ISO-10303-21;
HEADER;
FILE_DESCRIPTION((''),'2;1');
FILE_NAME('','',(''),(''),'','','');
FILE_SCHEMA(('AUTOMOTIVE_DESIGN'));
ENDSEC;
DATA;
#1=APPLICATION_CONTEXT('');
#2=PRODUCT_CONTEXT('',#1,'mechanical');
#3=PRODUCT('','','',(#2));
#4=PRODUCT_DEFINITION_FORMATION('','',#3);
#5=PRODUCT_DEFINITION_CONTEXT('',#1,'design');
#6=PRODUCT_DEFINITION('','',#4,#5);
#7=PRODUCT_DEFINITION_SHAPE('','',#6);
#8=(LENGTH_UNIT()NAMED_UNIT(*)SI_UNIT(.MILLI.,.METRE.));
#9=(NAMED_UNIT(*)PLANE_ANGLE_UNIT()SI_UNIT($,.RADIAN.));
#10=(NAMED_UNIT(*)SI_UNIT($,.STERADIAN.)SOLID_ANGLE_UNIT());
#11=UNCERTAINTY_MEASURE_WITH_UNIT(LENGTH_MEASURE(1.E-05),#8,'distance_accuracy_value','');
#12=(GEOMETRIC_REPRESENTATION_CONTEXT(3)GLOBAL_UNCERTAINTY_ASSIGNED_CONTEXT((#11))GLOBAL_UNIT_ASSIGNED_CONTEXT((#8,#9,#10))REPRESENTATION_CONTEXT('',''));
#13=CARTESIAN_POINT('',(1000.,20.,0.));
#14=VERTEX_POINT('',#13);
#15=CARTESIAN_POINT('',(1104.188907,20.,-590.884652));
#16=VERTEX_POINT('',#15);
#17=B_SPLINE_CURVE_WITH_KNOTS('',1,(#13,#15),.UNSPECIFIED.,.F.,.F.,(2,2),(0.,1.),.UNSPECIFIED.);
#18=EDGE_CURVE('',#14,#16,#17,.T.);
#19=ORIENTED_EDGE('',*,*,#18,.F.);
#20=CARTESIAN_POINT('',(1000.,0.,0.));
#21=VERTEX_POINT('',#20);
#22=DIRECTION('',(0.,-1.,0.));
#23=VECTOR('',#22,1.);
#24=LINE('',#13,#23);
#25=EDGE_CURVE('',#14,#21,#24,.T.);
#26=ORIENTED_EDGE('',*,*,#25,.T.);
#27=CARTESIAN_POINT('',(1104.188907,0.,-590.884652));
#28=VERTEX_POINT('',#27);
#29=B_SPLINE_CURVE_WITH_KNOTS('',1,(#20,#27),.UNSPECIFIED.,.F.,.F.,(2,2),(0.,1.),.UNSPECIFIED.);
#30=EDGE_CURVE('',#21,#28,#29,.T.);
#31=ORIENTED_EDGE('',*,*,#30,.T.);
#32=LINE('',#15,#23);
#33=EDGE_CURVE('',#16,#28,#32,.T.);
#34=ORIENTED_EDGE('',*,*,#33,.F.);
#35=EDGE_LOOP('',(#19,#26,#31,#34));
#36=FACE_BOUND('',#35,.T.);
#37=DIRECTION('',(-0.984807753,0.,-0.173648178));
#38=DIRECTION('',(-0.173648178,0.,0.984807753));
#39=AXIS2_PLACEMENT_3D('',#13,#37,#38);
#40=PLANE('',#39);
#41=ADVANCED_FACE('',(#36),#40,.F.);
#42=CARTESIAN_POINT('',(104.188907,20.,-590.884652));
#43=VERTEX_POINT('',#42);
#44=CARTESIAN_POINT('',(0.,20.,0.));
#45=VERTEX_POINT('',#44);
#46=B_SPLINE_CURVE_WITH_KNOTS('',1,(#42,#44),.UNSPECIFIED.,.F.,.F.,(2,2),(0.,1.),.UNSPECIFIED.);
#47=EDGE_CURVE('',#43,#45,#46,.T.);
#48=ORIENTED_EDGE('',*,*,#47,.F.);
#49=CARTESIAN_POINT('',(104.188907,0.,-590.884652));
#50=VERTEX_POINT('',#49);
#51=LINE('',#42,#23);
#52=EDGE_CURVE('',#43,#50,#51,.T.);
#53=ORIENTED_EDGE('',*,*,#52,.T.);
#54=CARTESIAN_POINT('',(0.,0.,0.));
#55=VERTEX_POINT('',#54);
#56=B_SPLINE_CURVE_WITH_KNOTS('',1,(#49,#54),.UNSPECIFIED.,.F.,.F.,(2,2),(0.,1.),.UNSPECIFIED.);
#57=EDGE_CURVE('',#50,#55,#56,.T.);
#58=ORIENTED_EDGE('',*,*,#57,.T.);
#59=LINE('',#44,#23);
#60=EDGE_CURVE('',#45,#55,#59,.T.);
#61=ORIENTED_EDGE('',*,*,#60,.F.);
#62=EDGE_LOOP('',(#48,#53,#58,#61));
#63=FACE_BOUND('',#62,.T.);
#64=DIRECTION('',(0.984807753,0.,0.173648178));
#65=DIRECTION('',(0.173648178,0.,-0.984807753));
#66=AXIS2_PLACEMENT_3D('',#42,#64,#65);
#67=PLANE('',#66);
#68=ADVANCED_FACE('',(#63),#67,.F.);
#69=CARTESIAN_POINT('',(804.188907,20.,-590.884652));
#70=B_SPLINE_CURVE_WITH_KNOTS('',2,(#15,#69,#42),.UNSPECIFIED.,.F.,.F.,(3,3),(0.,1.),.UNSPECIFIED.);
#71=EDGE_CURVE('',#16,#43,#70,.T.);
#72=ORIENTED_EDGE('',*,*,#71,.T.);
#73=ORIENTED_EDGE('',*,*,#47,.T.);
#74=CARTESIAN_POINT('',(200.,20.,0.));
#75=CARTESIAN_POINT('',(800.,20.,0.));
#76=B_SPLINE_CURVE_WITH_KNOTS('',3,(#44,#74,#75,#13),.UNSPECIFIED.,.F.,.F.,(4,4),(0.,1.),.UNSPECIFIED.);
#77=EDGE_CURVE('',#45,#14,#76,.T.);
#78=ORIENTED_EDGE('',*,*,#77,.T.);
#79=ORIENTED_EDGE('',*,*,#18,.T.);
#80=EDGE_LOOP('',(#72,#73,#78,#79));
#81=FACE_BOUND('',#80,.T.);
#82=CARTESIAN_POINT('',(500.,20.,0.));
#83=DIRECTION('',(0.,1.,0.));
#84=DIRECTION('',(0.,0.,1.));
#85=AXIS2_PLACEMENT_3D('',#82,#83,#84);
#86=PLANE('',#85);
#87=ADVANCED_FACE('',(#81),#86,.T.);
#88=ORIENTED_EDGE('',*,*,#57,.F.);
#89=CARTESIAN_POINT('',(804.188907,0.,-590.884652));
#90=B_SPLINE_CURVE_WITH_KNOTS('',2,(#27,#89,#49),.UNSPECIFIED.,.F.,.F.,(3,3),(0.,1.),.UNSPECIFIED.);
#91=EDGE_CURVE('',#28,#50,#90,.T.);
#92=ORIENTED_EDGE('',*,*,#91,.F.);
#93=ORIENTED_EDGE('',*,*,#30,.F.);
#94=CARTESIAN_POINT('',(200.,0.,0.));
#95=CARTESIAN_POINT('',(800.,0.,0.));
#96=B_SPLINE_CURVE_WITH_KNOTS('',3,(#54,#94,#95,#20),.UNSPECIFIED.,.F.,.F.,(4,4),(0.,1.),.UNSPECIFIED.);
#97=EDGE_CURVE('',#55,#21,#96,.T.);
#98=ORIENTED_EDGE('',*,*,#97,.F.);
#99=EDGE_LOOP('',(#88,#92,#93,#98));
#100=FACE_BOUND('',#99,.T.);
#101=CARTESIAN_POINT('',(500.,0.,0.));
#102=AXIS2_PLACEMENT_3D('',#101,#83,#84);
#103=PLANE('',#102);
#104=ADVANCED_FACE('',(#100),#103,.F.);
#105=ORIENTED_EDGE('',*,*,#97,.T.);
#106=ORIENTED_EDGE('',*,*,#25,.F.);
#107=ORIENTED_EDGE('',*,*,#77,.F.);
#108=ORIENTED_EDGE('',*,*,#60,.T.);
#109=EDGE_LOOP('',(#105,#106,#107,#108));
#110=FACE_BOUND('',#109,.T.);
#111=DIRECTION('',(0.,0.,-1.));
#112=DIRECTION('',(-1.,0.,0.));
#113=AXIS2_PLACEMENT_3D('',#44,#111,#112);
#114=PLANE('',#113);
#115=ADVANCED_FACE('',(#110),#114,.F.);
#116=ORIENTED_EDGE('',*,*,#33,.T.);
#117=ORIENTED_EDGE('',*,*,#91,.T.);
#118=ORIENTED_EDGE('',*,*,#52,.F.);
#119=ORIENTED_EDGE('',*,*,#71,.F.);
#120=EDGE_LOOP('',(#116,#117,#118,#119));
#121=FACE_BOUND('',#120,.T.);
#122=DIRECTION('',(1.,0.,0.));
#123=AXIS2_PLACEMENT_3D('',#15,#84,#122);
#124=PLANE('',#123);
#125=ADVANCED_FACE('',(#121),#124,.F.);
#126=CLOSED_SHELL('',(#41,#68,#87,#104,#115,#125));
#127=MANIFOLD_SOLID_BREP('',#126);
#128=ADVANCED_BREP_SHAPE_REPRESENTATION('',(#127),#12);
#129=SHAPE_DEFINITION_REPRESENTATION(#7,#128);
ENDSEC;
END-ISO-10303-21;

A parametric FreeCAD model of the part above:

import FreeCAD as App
import Part
import Sketcher

V = App.Vector

doc = App.newDocument("Part")
body = doc.addObject("PartDesign::Body", "Body")

sketch1 = body.newObject("Sketcher::SketchObject", "Sketch")
sketch1.AttachmentSupport = (doc.getObject("XZ_Plane"), [""])
sketch1.MapMode = "FlatFace"
sketch1.addGeometry(Part.BSplineCurve([V(0, 0, 0), V(104.188907, -590.884652, 0)], [2, 2], [0, 1], False, 1, [1, 1], False), False)
sketch1.addGeometry(Part.BSplineCurve([V(1000, 0, 0), V(800, 0, 0), V(200, 0, 0), V(0, 0, 0)], [4, 4], [0, 1], False, 3, [1, 1, 1, 1], False), False)
sketch1.addGeometry(Part.BSplineCurve([V(1104.188907, -590.884652, 0), V(1000, 0, 0)], [2, 2], [0, 1], False, 1, [1, 1], False), False)
sketch1.addGeometry(Part.BSplineCurve([V(104.188907, -590.884652, 0), V(804.188907, -590.884652, 0), V(1104.188907, -590.884652, 0)], [3, 3], [0, 1], False, 2, [1, 1, 1], False), False)
sketch1.addConstraint(Sketcher.Constraint("Block", 0))
sketch1.addConstraint(Sketcher.Constraint("Block", 1))
sketch1.addConstraint(Sketcher.Constraint("Block", 2))
sketch1.addConstraint(Sketcher.Constraint("Block", 3))
pad1 = body.newObject("PartDesign::Pad", "Pad")
pad1.Profile = sketch1
pad1.Length = 20
pad1.Reversed = True

doc.recompute()
